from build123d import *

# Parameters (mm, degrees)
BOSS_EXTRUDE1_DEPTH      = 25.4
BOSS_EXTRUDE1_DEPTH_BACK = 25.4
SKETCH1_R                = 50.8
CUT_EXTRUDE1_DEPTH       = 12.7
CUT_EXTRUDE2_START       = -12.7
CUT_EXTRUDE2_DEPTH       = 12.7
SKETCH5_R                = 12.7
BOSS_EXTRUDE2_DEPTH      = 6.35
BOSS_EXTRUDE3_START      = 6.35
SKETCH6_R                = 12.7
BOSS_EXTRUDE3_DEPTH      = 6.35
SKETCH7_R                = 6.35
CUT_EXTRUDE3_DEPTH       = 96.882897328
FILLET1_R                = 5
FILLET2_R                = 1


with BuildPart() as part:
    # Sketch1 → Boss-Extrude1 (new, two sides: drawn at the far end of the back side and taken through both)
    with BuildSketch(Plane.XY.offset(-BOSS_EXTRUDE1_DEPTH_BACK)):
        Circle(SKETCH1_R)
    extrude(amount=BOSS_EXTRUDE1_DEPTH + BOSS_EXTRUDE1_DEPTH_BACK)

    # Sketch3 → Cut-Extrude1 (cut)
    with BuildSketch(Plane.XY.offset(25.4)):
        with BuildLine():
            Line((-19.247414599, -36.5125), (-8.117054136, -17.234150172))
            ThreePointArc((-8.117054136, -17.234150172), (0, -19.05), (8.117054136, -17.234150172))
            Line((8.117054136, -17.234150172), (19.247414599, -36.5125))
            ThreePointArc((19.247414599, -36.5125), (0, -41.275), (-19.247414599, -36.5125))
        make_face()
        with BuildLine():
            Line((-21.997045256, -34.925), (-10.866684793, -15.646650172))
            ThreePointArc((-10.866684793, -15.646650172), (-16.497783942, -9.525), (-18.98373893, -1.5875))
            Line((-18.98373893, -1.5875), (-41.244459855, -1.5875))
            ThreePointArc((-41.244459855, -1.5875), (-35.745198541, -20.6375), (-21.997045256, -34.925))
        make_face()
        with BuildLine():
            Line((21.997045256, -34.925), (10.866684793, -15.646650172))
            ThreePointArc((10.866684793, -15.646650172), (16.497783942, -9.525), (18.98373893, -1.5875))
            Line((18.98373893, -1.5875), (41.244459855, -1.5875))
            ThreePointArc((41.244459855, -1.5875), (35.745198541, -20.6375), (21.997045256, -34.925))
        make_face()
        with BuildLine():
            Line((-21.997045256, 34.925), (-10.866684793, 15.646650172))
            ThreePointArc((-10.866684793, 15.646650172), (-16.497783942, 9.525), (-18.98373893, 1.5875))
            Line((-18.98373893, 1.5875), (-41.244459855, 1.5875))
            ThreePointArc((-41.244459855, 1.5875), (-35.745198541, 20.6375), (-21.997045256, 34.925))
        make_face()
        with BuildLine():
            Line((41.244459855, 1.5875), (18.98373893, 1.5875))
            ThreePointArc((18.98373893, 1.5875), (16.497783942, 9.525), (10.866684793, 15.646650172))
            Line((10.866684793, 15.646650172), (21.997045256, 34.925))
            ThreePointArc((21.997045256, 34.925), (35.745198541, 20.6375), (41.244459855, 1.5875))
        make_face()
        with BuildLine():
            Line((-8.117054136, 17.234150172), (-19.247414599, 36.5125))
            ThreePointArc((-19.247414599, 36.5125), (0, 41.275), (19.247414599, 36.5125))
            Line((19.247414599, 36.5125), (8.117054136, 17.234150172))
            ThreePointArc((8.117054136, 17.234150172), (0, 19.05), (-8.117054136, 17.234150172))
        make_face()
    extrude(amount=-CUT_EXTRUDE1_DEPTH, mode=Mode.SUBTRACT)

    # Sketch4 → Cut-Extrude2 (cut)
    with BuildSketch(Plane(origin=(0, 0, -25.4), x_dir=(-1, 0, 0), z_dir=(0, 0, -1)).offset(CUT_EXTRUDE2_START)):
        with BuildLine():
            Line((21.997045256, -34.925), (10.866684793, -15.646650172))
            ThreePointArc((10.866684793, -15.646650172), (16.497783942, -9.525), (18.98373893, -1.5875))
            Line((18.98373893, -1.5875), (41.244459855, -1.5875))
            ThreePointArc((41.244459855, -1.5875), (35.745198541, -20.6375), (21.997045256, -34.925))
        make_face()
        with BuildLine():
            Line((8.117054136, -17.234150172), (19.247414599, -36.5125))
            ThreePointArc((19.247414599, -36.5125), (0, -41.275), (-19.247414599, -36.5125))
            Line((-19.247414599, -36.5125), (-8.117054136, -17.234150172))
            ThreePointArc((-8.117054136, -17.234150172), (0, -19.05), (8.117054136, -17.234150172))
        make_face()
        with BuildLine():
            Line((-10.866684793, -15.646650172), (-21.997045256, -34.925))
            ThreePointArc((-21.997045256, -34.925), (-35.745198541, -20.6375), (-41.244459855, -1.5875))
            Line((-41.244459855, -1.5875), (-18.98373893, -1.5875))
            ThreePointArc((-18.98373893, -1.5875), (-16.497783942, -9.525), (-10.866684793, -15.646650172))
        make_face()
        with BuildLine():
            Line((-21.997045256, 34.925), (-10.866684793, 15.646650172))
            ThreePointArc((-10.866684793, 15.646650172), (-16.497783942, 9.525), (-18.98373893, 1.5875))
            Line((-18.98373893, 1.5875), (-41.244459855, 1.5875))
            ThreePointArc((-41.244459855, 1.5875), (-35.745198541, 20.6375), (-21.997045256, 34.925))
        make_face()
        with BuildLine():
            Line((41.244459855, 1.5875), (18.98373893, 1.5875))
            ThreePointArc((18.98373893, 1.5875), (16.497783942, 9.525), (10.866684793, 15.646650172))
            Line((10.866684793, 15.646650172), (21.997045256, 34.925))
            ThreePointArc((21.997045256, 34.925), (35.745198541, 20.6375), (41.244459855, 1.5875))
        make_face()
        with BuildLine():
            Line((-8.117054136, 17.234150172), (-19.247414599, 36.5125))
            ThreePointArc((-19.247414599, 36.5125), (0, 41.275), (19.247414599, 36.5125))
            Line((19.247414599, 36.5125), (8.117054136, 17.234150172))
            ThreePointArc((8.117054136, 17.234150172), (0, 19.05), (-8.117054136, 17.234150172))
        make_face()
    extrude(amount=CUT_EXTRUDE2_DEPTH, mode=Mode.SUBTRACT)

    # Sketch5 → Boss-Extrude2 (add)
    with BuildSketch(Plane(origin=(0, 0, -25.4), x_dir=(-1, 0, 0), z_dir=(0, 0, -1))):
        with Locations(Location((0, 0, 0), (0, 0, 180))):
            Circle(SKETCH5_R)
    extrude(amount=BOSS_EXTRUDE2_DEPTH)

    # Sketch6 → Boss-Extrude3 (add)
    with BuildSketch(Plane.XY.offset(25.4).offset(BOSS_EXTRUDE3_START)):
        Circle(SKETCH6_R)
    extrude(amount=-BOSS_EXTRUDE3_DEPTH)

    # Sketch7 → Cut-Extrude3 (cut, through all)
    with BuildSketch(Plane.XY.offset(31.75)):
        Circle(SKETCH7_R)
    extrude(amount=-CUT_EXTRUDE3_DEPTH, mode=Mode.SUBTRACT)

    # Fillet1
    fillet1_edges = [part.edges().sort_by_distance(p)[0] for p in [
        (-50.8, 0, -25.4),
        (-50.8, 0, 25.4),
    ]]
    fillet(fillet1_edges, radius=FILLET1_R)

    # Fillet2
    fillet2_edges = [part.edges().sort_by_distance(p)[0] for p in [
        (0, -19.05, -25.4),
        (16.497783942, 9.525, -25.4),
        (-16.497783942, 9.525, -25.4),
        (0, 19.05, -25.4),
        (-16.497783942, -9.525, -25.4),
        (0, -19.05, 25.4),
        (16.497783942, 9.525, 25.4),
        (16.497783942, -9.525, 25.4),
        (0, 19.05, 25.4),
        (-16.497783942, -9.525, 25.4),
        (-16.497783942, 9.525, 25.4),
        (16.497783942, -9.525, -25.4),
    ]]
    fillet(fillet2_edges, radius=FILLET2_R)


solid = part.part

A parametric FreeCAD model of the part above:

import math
import FreeCAD as App
import Part
import Sketcher
from FreeCAD import Vector
Q = App.Units.Quantity


def edges_at(feature, points):
    """Names of the edges that pass closest to the given points."""
    edges = feature.Shape.Edges
    near = lambda p: min(range(len(edges)), key=lambda i: edges[i].distToShape(Part.Vertex(*p))[0])
    return sorted({f"Edge{near(p) + 1}" for p in points})

doc = App.newDocument("Part")
body = doc.addObject("PartDesign::Body", "Body")

# Sketch on XY plane
sketch1 = body.newObject("Sketcher::SketchObject", "Sketch")
sketch1.AttachmentSupport = (doc.getObject("XY_Plane"), [""])
sketch1.MapMode = "FlatFace"
sketch1.addGeometry(Part.Circle(Vector(0, 0, 0), Vector(0, 0, 1), 51), False)
sketch1.addConstraint(Sketcher.Constraint("Coincident", 0, 3, -1, 1))
sketch1.addConstraint(Sketcher.Constraint("Diameter", 0, Q("4 in")))
pad1 = body.newObject("PartDesign::Pad", "Pad")
pad1.Profile = sketch1
pad1.Type = "TwoLengths"
pad1.Length = Q("1 in")
pad1.Length2 = Q("1 in")

# Sketch on XY plane
sketch2 = body.newObject("Sketcher::SketchObject", "Sketch001")
sketch2.AttachmentSupport = (doc.getObject("XY_Plane"), [""])
sketch2.MapMode = "FlatFace"
sketch2.AttachmentOffset = App.Placement(Vector(0, 0, 1 * 25.4), App.Rotation())
sketch2.addGeometry(Part.LineSegment(Vector(-8, -17, 0), Vector(-19, -37, 0)), False)
sketch2.addGeometry(Part.ArcOfCircle(Part.Circle(Vector(0, 0, 0), Vector(0, 0, 1), 41), math.radians(-118), math.radians(-62)), False)
sketch2.addGeometry(Part.LineSegment(Vector(19, -37, 0), Vector(8, -17, 0)), False)
sketch2.addGeometry(Part.ArcOfCircle(Part.Circle(Vector(0, 0, 0), Vector(0, 0, 1), 19), math.radians(-115), math.radians(-65)), False)
sketch2.addGeometry(Part.LineSegment(Vector(-22, -35, 0), Vector(-11, -16, 0)), False)
sketch2.addGeometry(Part.ArcOfCircle(Part.Circle(Vector(0, 0, 0), Vector(0, 0, 1), 19), math.radians(-175), math.radians(-125)), False)
sketch2.addGeometry(Part.LineSegment(Vector(-19, -2, 0), Vector(-41, -2, 0)), False)
sketch2.addGeometry(Part.ArcOfCircle(Part.Circle(Vector(0, 0, 0), Vector(0, 0, 1), 41), math.radians(-178), math.radians(-122)), False)
sketch2.addGeometry(Part.LineSegment(Vector(11, -16, 0), Vector(22, -35, 0)), False)
sketch2.addGeometry(Part.ArcOfCircle(Part.Circle(Vector(0, 0, 0), Vector(0, 0, 1), 41), math.radians(-58), math.radians(-2)), False)
sketch2.addGeometry(Part.LineSegment(Vector(41, -2, 0), Vector(19, -2, 0)), False)
sketch2.addGeometry(Part.ArcOfCircle(Part.Circle(Vector(0, 0, 0), Vector(0, 0, 1), 19), math.radians(-55), math.radians(-5)), False)
sketch2.addGeometry(Part.LineSegment(Vector(-11, 16, 0), Vector(-22, 35, 0)), False)
sketch2.addGeometry(Part.ArcOfCircle(Part.Circle(Vector(0, 0, 0), Vector(0, 0, 1), 41), math.radians(122), math.radians(178)), False)
sketch2.addGeometry(Part.LineSegment(Vector(-41, 2, 0), Vector(-19, 2, 0)), False)
sketch2.addGeometry(Part.ArcOfCircle(Part.Circle(Vector(0, 0, 0), Vector(0, 0, 1), 19), math.radians(125), math.radians(175)), False)
sketch2.addGeometry(Part.LineSegment(Vector(19, 2, 0), Vector(41, 2, 0)), False)
sketch2.addGeometry(Part.ArcOfCircle(Part.Circle(Vector(0, 0, 0), Vector(0, 0, 1), 41), math.radians(2), math.radians(58)), False)
sketch2.addGeometry(Part.LineSegment(Vector(22, 35, 0), Vector(11, 16, 0)), False)
sketch2.addGeometry(Part.ArcOfCircle(Part.Circle(Vector(0, 0, 0), Vector(0, 0, 1), 19), math.radians(5), math.radians(55)), False)
sketch2.addGeometry(Part.LineSegment(Vector(-19, 37, 0), Vector(-8, 17, 0)), False)
sketch2.addGeometry(Part.ArcOfCircle(Part.Circle(Vector(0, 0, 0), Vector(0, 0, 1), 19), math.radians(65), math.radians(115)), False)
sketch2.addGeometry(Part.LineSegment(Vector(8, 17, 0), Vector(19, 37, 0)), False)
sketch2.addGeometry(Part.ArcOfCircle(Part.Circle(Vector(0, 0, 0), Vector(0, 0, 1), 41), math.radians(62), math.radians(118)), False)
sketch2.addConstraint(Sketcher.Constraint("Coincident", 0, 2, 1, 1))
sketch2.addConstraint(Sketcher.Constraint("Coincident", 1, 2, 2, 1))
sketch2.addConstraint(Sketcher.Constraint("Coincident", 2, 2, 3, 2))
sketch2.addConstraint(Sketcher.Constraint("Coincident", 3, 1, 0, 1))
sketch2.addConstraint(Sketcher.Constraint("Coincident", 4, 2, 5, 2))
sketch2.addConstraint(Sketcher.Constraint("Coincident", 5, 1, 6, 1))
sketch2.addConstraint(Sketcher.Constraint("Coincident", 6, 2, 7, 1))
sketch2.addConstraint(Sketcher.Constraint("Coincident", 7, 2, 4, 1))
sketch2.addConstraint(Sketcher.Constraint("Coincident", 8, 2, 9, 1))
sketch2.addConstraint(Sketcher.Constraint("Coincident", 9, 2, 10, 1))
sketch2.addConstraint(Sketcher.Constraint("Coincident", 10, 2, 11, 2))
sketch2.addConstraint(Sketcher.Constraint("Coincident", 11, 1, 8, 1))
sketch2.addConstraint(Sketcher.Constraint("Coincident", 12, 2, 13, 1))
sketch2.addConstraint(Sketcher.Constraint("Coincident", 13, 2, 14, 1))
sketch2.addConstraint(Sketcher.Constraint("Coincident", 14, 2, 15, 2))
sketch2.addConstraint(Sketcher.Constraint("Coincident", 15, 1, 12, 1))
sketch2.addConstraint(Sketcher.Constraint("Coincident", 16, 2, 17, 1))
sketch2.addConstraint(Sketcher.Constraint("Coincident", 17, 2, 18, 1))
sketch2.addConstraint(Sketcher.Constraint("Coincident", 18, 2, 19, 2))
sketch2.addConstraint(Sketcher.Constraint("Coincident", 19, 1, 16, 1))
sketch2.addConstraint(Sketcher.Constraint("Coincident", 20, 2, 21, 2))
sketch2.addConstraint(Sketcher.Constraint("Coincident", 21, 1, 22, 1))
sketch2.addConstraint(Sketcher.Constraint("Coincident", 22, 2, 23, 1))
sketch2.addConstraint(Sketcher.Constraint("Coincident", 23, 2, 20, 1))
sketch2.addConstraint(Sketcher.Constraint("Horizontal", 6))
sketch2.addConstraint(Sketcher.Constraint("Horizontal", 10))
sketch2.addConstraint(Sketcher.Constraint("Horizontal", 14))
sketch2.addConstraint(Sketcher.Constraint("Horizontal", 16))
sketch2.addConstraint(Sketcher.Constraint("Coincident", 1, 3, -1, 1))
sketch2.addConstraint(Sketcher.Constraint("Coincident", 3, 3, -1, 1))
sketch2.addConstraint(Sketcher.Constraint("Coincident", 5, 3, -1, 1))
sketch2.addConstraint(Sketcher.Constraint("Coincident", 7, 3, -1, 1))
sketch2.addConstraint(Sketcher.Constraint("Coincident", 9, 3, -1, 1))
sketch2.addConstraint(Sketcher.Constraint("Coincident", 11, 3, -1, 1))
sketch2.addConstraint(Sketcher.Constraint("Coincident", 13, 3, -1, 1))
sketch2.addConstraint(Sketcher.Constraint("Coincident", 15, 3, -1, 1))
sketch2.addConstraint(Sketcher.Constraint("Coincident", 17, 3, -1, 1))
sketch2.addConstraint(Sketcher.Constraint("Coincident", 19, 3, -1, 1))
sketch2.addConstraint(Sketcher.Constraint("Coincident", 21, 3, -1, 1))
sketch2.addConstraint(Sketcher.Constraint("Coincident", 23, 3, -1, 1))
sketch2.addConstraint(Sketcher.Constraint("Equal", 3, 5))
sketch2.addConstraint(Sketcher.Constraint("Equal", 1, 7))
sketch2.addConstraint(Sketcher.Constraint("Equal", 7, 9))
sketch2.addConstraint(Sketcher.Constraint("Equal", 5, 11))
sketch2.addConstraint(Sketcher.Constraint("Equal", 9, 13))
sketch2.addConstraint(Sketcher.Constraint("Equal", 11, 15))
sketch2.addConstraint(Sketcher.Constraint("Equal", 13, 17))
sketch2.addConstraint(Sketcher.Constraint("Equal", 15, 19))
sketch2.addConstraint(Sketcher.Constraint("Equal", 19, 21))
sketch2.addConstraint(Sketcher.Constraint("Equal", 17, 23))
sketch2.addConstraint(Sketcher.Constraint("Parallel", 0, 4))
sketch2.addConstraint(Sketcher.Constraint("Parallel", 2, 8))
sketch2.addConstraint(Sketcher.Constraint("Parallel", 8, 12))
sketch2.addConstraint(Sketcher.Constraint("Parallel", 4, 18))
sketch2.addConstraint(Sketcher.Constraint("Parallel", 12, 20))
sketch2.addConstraint(Sketcher.Constraint("Parallel", 18, 22))
sketch2.addConstraint(Sketcher.Constraint("Horizontal", 0, 2, 1, 2))
sketch2.addConstraint(Sketcher.Constraint("Horizontal", 2, 2, 3, 1))
sketch2.addConstraint(Sketcher.Constraint("Horizontal", 7, 2, 8, 2))
sketch2.addConstraint(Sketcher.Constraint("Horizontal", 6, 2, 9, 2))
sketch2.addConstraint(Sketcher.Constraint("Horizontal", 14, 2, 16, 2))
sketch2.addConstraint(Sketcher.Constraint("Horizontal", 12, 2, 17, 2))
sketch2.addConstraint(Sketcher.Constraint("Horizontal", 20, 2, 21, 1))
sketch2.addConstraint(Sketcher.Constraint("Vertical", 7, 2, 12, 2))
sketch2.addConstraint(Sketcher.Constraint("Vertical", 6, 2, 13, 2))
sketch2.addConstraint(Sketcher.Constraint("Vertical", 3, 1, 20, 2))
sketch2.addConstraint(Sketcher.Constraint("Equal", 2, 4))
sketch2.addConstraint(Sketcher.Constraint("Radius", 3, Q("0.75 in")))
sketch2.addConstraint(Sketcher.Constraint("Angle", 0, Q("-120 deg")))
sketch2.addConstraint(Sketcher.Constraint("Radius", 1, Q("1.625 in")))
sketch2.addConstraint(Sketcher.Constraint("DistanceY", 0, 2, -1, 1, Q("1.4375 in")))
sketch2.addConstraint(Sketcher.Constraint("DistanceY", 5, 1, -1, 1, Q("0.0625 in")))
pocket1 = body.newObject("PartDesign::Pocket", "Pocket")
pocket1.Profile = sketch2
pocket1.Length = Q("0.5 in")

# Sketch on XY plane
sketch3 = body.newObject("Sketcher::SketchObject", "Sketch002")
sketch3.AttachmentSupport = (doc.getObject("XY_Plane"), [""])
sketch3.MapMode = "FlatFace"
sketch3.AttachmentOffset = App.Placement(Vector(0, 0, -0.5 * 25.4), App.Rotation())
sketch3.addGeometry(Part.LineSegment(Vector(-11, -16, 0), Vector(-22, -35, 0)), False)
sketch3.addGeometry(Part.ArcOfCircle(Part.Circle(Vector(0, 0, 0), Vector(0, 0, 1), 41), math.radians(-178), math.radians(-122)), False)
sketch3.addGeometry(Part.LineSegment(Vector(-41, -2, 0), Vector(-19, -2, 0)), False)
sketch3.addGeometry(Part.ArcOfCircle(Part.Circle(Vector(0, 0, 0), Vector(0, 0, 1), 19), math.radians(-175), math.radians(-125)), False)
sketch3.addGeometry(Part.LineSegment(Vector(-19, -37, 0), Vector(-8, -17, 0)), False)
sketch3.addGeometry(Part.ArcOfCircle(Part.Circle(Vector(0, 0, 0), Vector(0, 0, 1), 19), math.radians(-115), math.radians(-65)), False)
sketch3.addGeometry(Part.LineSegment(Vector(8, -17, 0), Vector(19, -37, 0)), False)
sketch3.addGeometry(Part.ArcOfCircle(Part.Circle(Vector(0, 0, 0), Vector(0, 0, 1), 41), math.radians(-118), math.radians(-62)), False)
sketch3.addGeometry(Part.LineSegment(Vector(22, -35, 0), Vector(11, -16, 0)), False)
sketch3.addGeometry(Part.ArcOfCircle(Part.Circle(Vector(0, 0, 0), Vector(0, 0, 1), 19), math.radians(-55), math.radians(-5)), False)
sketch3.addGeometry(Part.LineSegment(Vector(19, -2, 0), Vector(41, -2, 0)), False)
sketch3.addGeometry(Part.ArcOfCircle(Part.Circle(Vector(0, 0, 0), Vector(0, 0, 1), 41), math.radians(-58), math.radians(-2)), False)
sketch3.addGeometry(Part.LineSegment(Vector(11, 16, 0), Vector(22, 35, 0)), False)
sketch3.addGeometry(Part.ArcOfCircle(Part.Circle(Vector(0, 0, 0), Vector(0, 0, 1), 41), math.radians(2), math.radians(58)), False)
sketch3.addGeometry(Part.LineSegment(Vector(41, 2, 0), Vector(19, 2, 0)), False)
sketch3.addGeometry(Part.ArcOfCircle(Part.Circle(Vector(0, 0, 0), Vector(0, 0, 1), 19), math.radians(5), math.radians(55)), False)
sketch3.addGeometry(Part.LineSegment(Vector(-19, 2, 0), Vector(-41, 2, 0)), False)
sketch3.addGeometry(Part.ArcOfCircle(Part.Circle(Vector(0, 0, 0), Vector(0, 0, 1), 41), math.radians(122), math.radians(178)), False)
sketch3.addGeometry(Part.LineSegment(Vector(-22, 35, 0), Vector(-11, 16, 0)), False)
sketch3.addGeometry(Part.ArcOfCircle(Part.Circle(Vector(0, 0, 0), Vector(0, 0, 1), 19), math.radians(125), math.radians(175)), False)
sketch3.addGeometry(Part.LineSegment(Vector(19, 37, 0), Vector(8, 17, 0)), False)
sketch3.addGeometry(Part.ArcOfCircle(Part.Circle(Vector(0, 0, 0), Vector(0, 0, 1), 19), math.radians(65), math.radians(115)), False)
sketch3.addGeometry(Part.LineSegment(Vector(-8, 17, 0), Vector(-19, 37, 0)), False)
sketch3.addGeometry(Part.ArcOfCircle(Part.Circle(Vector(0, 0, 0), Vector(0, 0, 1), 41), math.radians(62), math.radians(118)), False)
sketch3.addConstraint(Sketcher.Constraint("Coincident", 0, 2, 1, 2))
sketch3.addConstraint(Sketcher.Constraint("Coincident", 1, 1, 2, 1))
sketch3.addConstraint(Sketcher.Constraint("Coincident", 2, 2, 3, 1))
sketch3.addConstraint(Sketcher.Constraint("Coincident", 3, 2, 0, 1))
sketch3.addConstraint(Sketcher.Constraint("Coincident", 4, 2, 5, 1))
sketch3.addConstraint(Sketcher.Constraint("Coincident", 5, 2, 6, 1))
sketch3.addConstraint(Sketcher.Constraint("Coincident", 6, 2, 7, 2))
sketch3.addConstraint(Sketcher.Constraint("Coincident", 7, 1, 4, 1))
sketch3.addConstraint(Sketcher.Constraint("Coincident", 8, 2, 9, 1))
sketch3.addConstraint(Sketcher.Constraint("Coincident", 9, 2, 10, 1))
sketch3.addConstraint(Sketcher.Constraint("Coincident", 10, 2, 11, 2))
sketch3.addConstraint(Sketcher.Constraint("Coincident", 11, 1, 8, 1))
sketch3.addConstraint(Sketcher.Constraint("Coincident", 12, 2, 13, 2))
sketch3.addConstraint(Sketcher.Constraint("Coincident", 13, 1, 14, 1))
sketch3.addConstraint(Sketcher.Constraint("Coincident", 14, 2, 15, 1))
sketch3.addConstraint(Sketcher.Constraint("Coincident", 15, 2, 12, 1))
sketch3.addConstraint(Sketcher.Constraint("Coincident", 16, 2, 17, 2))
sketch3.addConstraint(Sketcher.Constraint("Coincident", 17, 1, 18, 1))
sketch3.addConstraint(Sketcher.Constraint("Coincident", 18, 2, 19, 1))
sketch3.addConstraint(Sketcher.Constraint("Coincident", 19, 2, 16, 1))
sketch3.addConstraint(Sketcher.Constraint("Coincident", 20, 2, 21, 1))
sketch3.addConstraint(Sketcher.Constraint("Coincident", 21, 2, 22, 1))
sketch3.addConstraint(Sketcher.Constraint("Coincident", 22, 2, 23, 2))
sketch3.addConstraint(Sketcher.Constraint("Coincident", 23, 1, 20, 1))
sketch3.addConstraint(Sketcher.Constraint("Horizontal", 2))
sketch3.addConstraint(Sketcher.Constraint("Horizontal", 10))
sketch3.addConstraint(Sketcher.Constraint("Horizontal", 14))
sketch3.addConstraint(Sketcher.Constraint("Horizontal", 16))
sketch3.addConstraint(Sketcher.Constraint("Coincident", 1, 3, -1, 1))
sketch3.addConstraint(Sketcher.Constraint("Coincident", 3, 3, -1, 1))
sketch3.addConstraint(Sketcher.Constraint("Coincident", 5, 3, -1, 1))
sketch3.addConstraint(Sketcher.Constraint("Coincident", 7, 3, -1, 1))
sketch3.addConstraint(Sketcher.Constraint("Coincident", 9, 3, -1, 1))
sketch3.addConstraint(Sketcher.Constraint("Coincident", 11, 3, -1, 1))
sketch3.addConstraint(Sketcher.Constraint("Coincident", 13, 3, -1, 1))
sketch3.addConstraint(Sketcher.Constraint("Coincident", 15, 3, -1, 1))
sketch3.addConstraint(Sketcher.Constraint("Coincident", 17, 3, -1, 1))
sketch3.addConstraint(Sketcher.Constraint("Coincident", 19, 3, -1, 1))
sketch3.addConstraint(Sketcher.Constraint("Coincident", 21, 3, -1, 1))
sketch3.addConstraint(Sketcher.Constraint("Coincident", 23, 3, -1, 1))
sketch3.addConstraint(Sketcher.Constraint("Equal", 3, 5))
sketch3.addConstraint(Sketcher.Constraint("Equal", 1, 7))
sketch3.addConstraint(Sketcher.Constraint("Equal", 5, 9))
sketch3.addConstraint(Sketcher.Constraint("Equal", 7, 11))
sketch3.addConstraint(Sketcher.Constraint("Equal", 11, 13))
sketch3.addConstraint(Sketcher.Constraint("Equal", 9, 15))
sketch3.addConstraint(Sketcher.Constraint("Equal", 13, 17))
sketch3.addConstraint(Sketcher.Constraint("Equal", 15, 19))
sketch3.addConstraint(Sketcher.Constraint("Equal", 19, 21))
sketch3.addConstraint(Sketcher.Constraint("Equal", 17, 23))
sketch3.addConstraint(Sketcher.Constraint("Parallel", 0, 4))
sketch3.addConstraint(Sketcher.Constraint("Parallel", 6, 8))
sketch3.addConstraint(Sketcher.Constraint("Parallel", 4, 12))
sketch3.addConstraint(Sketcher.Constraint("Parallel", 8, 18))
sketch3.addConstraint(Sketcher.Constraint("Parallel", 12, 20))
sketch3.addConstraint(Sketcher.Constraint("Parallel", 18, 22))
sketch3.addConstraint(Sketcher.Constraint("Horizontal", 4, 2, 5, 2))
sketch3.addConstraint(Sketcher.Constraint("Horizontal", 6, 2, 7, 1))
sketch3.addConstraint(Sketcher.Constraint("Horizontal", 3, 2, 8, 2))
sketch3.addConstraint(Sketcher.Constraint("Horizontal", 2, 2, 9, 2))
sketch3.addConstraint(Sketcher.Constraint("Horizontal", 14, 2, 16, 2))
sketch3.addConstraint(Sketcher.Constraint("Horizontal", 12, 2, 17, 1))
sketch3.addConstraint(Sketcher.Constraint("Horizontal", 20, 2, 21, 2))
sketch3.addConstraint(Sketcher.Constraint("Vertical", 11, 1, 12, 2))
sketch3.addConstraint(Sketcher.Constraint("Vertical", 10, 2, 13, 1))
sketch3.addConstraint(Sketcher.Constraint("Vertical", 5, 2, 20, 2))
sketch3.addConstraint(Sketcher.Constraint("Equal", 0, 4))
sketch3.addConstraint(Sketcher.Constraint("Radius", 3, Q("0.75 in")))
sketch3.addConstraint(Sketcher.Constraint("Angle", 0, Q("-120 deg")))
sketch3.addConstraint(Sketcher.Constraint("Radius", 1, Q("1.625 in")))
sketch3.addConstraint(Sketcher.Constraint("DistanceY", 0, 2, -1, 1, Q("1.375 in")))
sketch3.addConstraint(Sketcher.Constraint("DistanceY", 1, 1, -1, 1, Q("0.0625 in")))
pocket2 = body.newObject("PartDesign::Pocket", "Pocket001")
pocket2.Profile = sketch3
pocket2.Length = Q("0.5 in")

# Sketch on XY plane
sketch4 = body.newObject("Sketcher::SketchObject", "Sketch003")
sketch4.AttachmentSupport = (doc.getObject("XY_Plane"), [""])
sketch4.MapMode = "FlatFace"
sketch4.AttachmentOffset = App.Placement(Vector(0, 0, -1 * 25.4), App.Rotation())
sketch4.addGeometry(Part.Circle(Vector(0, 0, 0), Vector(0, 0, 1), 13), False)
sketch4.addConstraint(Sketcher.Constraint("Coincident", 0, 3, -1, 1))
sketch4.addConstraint(Sketcher.Constraint("Diameter", 0, Q("1 in")))
pad2 = body.newObject("PartDesign::Pad", "Pad001")
pad2.Profile = sketch4
pad2.Length = Q("0.25 in")
pad2.Reversed = True

# Sketch on XY plane
sketch5 = body.newObject("Sketcher::SketchObject", "Sketch004")
sketch5.AttachmentSupport = (doc.getObject("XY_Plane"), [""])
sketch5.MapMode = "FlatFace"
sketch5.AttachmentOffset = App.Placement(Vector(0, 0, 1.25 * 25.4), App.Rotation())
sketch5.addGeometry(Part.Circle(Vector(0, 0, 0), Vector(0, 0, 1), 13), False)
sketch5.addConstraint(Sketcher.Constraint("Coincident", 0, 3, -1, 1))
sketch5.addConstraint(Sketcher.Constraint("Diameter", 0, Q("1 in")))
pad3 = body.newObject("PartDesign::Pad", "Pad002")
pad3.Profile = sketch5
pad3.Length = Q("0.25 in")
pad3.Reversed = True

# Sketch on XY plane
sketch6 = body.newObject("Sketcher::SketchObject", "Sketch005")
sketch6.AttachmentSupport = (doc.getObject("XY_Plane"), [""])
sketch6.MapMode = "FlatFace"
sketch6.AttachmentOffset = App.Placement(Vector(0, 0, 1.25 * 25.4), App.Rotation())
sketch6.addGeometry(Part.Circle(Vector(0, 0, 0), Vector(0, 0, 1), 6), False)
sketch6.addConstraint(Sketcher.Constraint("Coincident", 0, 3, -1, 1))
sketch6.addConstraint(Sketcher.Constraint("Diameter", 0, Q("0.5 in")))
pocket3 = body.newObject("PartDesign::Pocket", "Pocket002")
pocket3.Profile = sketch6
pocket3.Type = "ThroughAll"
doc.recompute()

fillet = body.newObject("PartDesign::Fillet", "Fillet")
fillet.Base = (pocket3, edges_at(pocket3, [(-50.8, 0, -25.4), (-50.8, 0, 25.4)]))
fillet.Radius = 5
doc.recompute()

fillet2 = body.newObject("PartDesign::Fillet", "Fillet001")
fillet2.Base = (fillet, edges_at(fillet, [
    (0, -19.05, -25.4),
    (16.498, 9.525, -25.4),
    (-16.498, 9.525, -25.4),
    (0, 19.05, -25.4),
    (-16.498, -9.525, -25.4),
    (0, -19.05, 25.4),
    (16.498, 9.525, 25.4),
    (16.498, -9.525, 25.4),
    (0, 19.05, 25.4),
    (-16.498, -9.525, 25.4),
    (-16.498, 9.525, 25.4),
    (16.498, -9.525, -25.4),
]))
fillet2.Radius = 1

doc.recompute()
